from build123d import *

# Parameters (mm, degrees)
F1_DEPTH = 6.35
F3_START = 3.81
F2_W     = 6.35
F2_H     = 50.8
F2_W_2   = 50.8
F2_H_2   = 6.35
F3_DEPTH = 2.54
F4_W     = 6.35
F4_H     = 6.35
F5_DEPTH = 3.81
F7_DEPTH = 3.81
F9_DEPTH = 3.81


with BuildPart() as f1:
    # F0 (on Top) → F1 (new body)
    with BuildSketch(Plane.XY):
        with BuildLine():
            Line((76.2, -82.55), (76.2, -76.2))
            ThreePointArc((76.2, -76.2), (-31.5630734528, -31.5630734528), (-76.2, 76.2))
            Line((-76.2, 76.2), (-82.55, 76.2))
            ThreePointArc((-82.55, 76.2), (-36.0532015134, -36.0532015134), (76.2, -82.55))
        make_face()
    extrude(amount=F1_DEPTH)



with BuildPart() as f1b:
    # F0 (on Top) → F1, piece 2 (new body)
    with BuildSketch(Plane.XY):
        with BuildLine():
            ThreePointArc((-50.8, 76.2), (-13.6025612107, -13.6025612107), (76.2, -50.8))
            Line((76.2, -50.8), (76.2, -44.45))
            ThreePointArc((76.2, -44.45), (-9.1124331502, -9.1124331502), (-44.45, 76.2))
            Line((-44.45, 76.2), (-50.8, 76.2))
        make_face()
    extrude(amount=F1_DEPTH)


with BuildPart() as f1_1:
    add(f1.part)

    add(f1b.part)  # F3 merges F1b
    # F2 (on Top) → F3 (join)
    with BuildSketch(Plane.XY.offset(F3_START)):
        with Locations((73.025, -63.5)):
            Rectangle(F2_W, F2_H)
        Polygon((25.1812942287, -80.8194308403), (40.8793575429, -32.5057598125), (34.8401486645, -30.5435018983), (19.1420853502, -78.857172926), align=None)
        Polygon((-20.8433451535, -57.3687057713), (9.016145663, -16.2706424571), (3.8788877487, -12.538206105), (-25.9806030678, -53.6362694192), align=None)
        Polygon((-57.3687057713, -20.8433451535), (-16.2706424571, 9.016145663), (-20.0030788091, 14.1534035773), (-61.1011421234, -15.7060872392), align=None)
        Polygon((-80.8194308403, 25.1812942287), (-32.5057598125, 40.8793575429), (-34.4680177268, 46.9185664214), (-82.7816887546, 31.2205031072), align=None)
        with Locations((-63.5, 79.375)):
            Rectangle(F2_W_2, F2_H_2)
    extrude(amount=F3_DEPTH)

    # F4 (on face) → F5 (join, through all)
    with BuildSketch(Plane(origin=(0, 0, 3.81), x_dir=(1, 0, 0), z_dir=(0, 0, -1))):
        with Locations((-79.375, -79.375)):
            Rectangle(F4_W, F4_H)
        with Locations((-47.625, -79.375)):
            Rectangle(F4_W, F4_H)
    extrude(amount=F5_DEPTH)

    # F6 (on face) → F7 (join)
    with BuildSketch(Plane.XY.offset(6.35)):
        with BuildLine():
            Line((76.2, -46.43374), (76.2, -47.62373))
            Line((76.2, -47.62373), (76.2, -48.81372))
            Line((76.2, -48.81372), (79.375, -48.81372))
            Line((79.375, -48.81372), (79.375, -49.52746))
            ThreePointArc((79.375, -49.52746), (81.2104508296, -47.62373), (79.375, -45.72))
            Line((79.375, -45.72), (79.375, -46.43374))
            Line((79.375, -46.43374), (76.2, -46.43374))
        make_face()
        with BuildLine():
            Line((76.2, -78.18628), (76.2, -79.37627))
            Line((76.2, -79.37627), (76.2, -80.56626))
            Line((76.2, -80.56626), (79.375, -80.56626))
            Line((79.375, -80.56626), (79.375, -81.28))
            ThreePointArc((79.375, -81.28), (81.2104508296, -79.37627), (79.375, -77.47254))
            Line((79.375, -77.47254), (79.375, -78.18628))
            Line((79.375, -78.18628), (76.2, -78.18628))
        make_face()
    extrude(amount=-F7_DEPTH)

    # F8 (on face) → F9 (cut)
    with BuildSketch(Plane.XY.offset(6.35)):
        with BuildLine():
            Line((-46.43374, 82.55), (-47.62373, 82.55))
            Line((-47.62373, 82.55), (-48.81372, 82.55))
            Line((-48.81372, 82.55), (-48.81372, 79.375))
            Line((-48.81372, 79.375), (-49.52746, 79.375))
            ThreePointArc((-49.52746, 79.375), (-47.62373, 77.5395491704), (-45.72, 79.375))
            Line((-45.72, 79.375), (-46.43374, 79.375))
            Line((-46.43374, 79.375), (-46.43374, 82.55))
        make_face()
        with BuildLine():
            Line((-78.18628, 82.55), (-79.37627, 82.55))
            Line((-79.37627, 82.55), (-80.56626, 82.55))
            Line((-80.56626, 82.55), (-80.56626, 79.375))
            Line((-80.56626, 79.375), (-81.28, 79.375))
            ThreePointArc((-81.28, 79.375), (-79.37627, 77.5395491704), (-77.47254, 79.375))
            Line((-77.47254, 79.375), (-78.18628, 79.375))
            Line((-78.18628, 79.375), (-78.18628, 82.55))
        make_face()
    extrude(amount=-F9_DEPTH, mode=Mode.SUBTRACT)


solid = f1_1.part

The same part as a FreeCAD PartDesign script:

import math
import FreeCAD as App
import Part
import Sketcher
Q = App.Units.Quantity

doc = App.newDocument("Part")
body = doc.addObject("PartDesign::Body", "Body")

# Sketch on XY plane
sketch1 = body.newObject("Sketcher::SketchObject", "Sketch")
sketch1.AttachmentSupport = (doc.getObject("XY_Plane"), [""])
sketch1.MapMode = "FlatFace"
sketch1.addGeometry([
    Part.LineSegment(App.Vector(76, -83, 0), App.Vector(76, -76, 0)),
    Part.ArcOfCircle(Part.Circle(App.Vector(76, 76, 0), App.Vector(0, 0, 1), 152), math.radians(180), math.radians(270)),
    Part.LineSegment(App.Vector(-76, 76, 0), App.Vector(-83, 76, 0)),
    Part.ArcOfCircle(Part.Circle(App.Vector(76, 76, 0), App.Vector(0, 0, 1), 159), math.radians(180), math.radians(270)),
], False)
sketch1.addConstraint([
    Sketcher.Constraint("Coincident", 0, 2, 1, 2),
    Sketcher.Constraint("Coincident", 1, 1, 2, 1),
    Sketcher.Constraint("Coincident", 2, 2, 3, 1),
    Sketcher.Constraint("Coincident", 3, 2, 0, 1),
    Sketcher.Constraint("Vertical", 0),
    Sketcher.Constraint("Horizontal", 2),
    Sketcher.Constraint("Coincident", 3, 3, 1, 3),
    Sketcher.Constraint("Symmetric", 0, 2, 1, 1, -1, 1),
    Sketcher.Constraint("Horizontal", 3, 3, 1, 1),
    Sketcher.Constraint("Vertical", 3, 3, 0, 2),
    Sketcher.Constraint("Radius", 1, Q("6 in")),
    Sketcher.Constraint("Radius", 3, Q("6.25 in")),
])
pad1 = body.newObject("PartDesign::Pad", "Pad")
pad1.Profile = sketch1
pad1.Length = Q("0.25 in")
body2 = doc.addObject("PartDesign::Body", "Body001")

# Sketch on XY plane
sketch2 = body2.newObject("Sketcher::SketchObject", "Sketch001")
sketch2.AttachmentSupport = (doc.getObject("XY_Plane001"), [""])
sketch2.MapMode = "FlatFace"
sketch2.addGeometry([
    Part.ArcOfCircle(Part.Circle(App.Vector(76, 76, 0), App.Vector(0, 0, 1), 127), math.radians(180), math.radians(270)),
    Part.LineSegment(App.Vector(76, -51, 0), App.Vector(76, -44, 0)),
    Part.ArcOfCircle(Part.Circle(App.Vector(76, 76, 0), App.Vector(0, 0, 1), 121), math.radians(180), math.radians(270)),
    Part.LineSegment(App.Vector(-44, 76, 0), App.Vector(-51, 76, 0)),
], False)
sketch2.addConstraint([
    Sketcher.Constraint("Coincident", 0, 2, 1, 1),
    Sketcher.Constraint("Coincident", 1, 2, 2, 2),
    Sketcher.Constraint("Coincident", 2, 1, 3, 1),
    Sketcher.Constraint("Coincident", 3, 2, 0, 1),
    Sketcher.Constraint("Vertical", 1),
    Sketcher.Constraint("Horizontal", 3),
    Sketcher.Constraint("Coincident", 2, 3, 0, 3),
    Sketcher.Constraint("Horizontal", 0, 3, 2, 1),
    Sketcher.Constraint("Vertical", 2, 3, 0, 2),
    Sketcher.Constraint("Radius", 0, Q("5 in")),
    Sketcher.Constraint("Radius", 2, Q("4.75 in")),
    Sketcher.Constraint("DistanceX", -1, 1, 0, 3, Q("3 in")),
    Sketcher.Constraint("DistanceY", -1, 1, 0, 3, Q("3 in")),
])
pad2 = body2.newObject("PartDesign::Pad", "Pad001")
pad2.Profile = sketch2
pad2.Length = Q("0.25 in")
body.AllowCompound = True
doc.recompute()

boolean = body.newObject("PartDesign::Boolean", "Boolean")
boolean.Type = "Fuse"
boolean.addObjects([body2])

# Sketch on XY plane
sketch3 = body.newObject("Sketcher::SketchObject", "Sketch002")
sketch3.AttachmentSupport = (doc.getObject("XY_Plane"), [""])
sketch3.MapMode = "FlatFace"
sketch3.AttachmentOffset = App.Placement(App.Vector(0, 0, 0.15 * 25.4), App.Rotation())
sketch3.addGeometry([
    Part.LineSegment(App.Vector(70, -38, 0), App.Vector(70, -89, 0)),  # 0
    Part.LineSegment(App.Vector(70, -89, 0), App.Vector(76, -89, 0)),  # 1
    Part.LineSegment(App.Vector(76, -89, 0), App.Vector(76, -38, 0)),  # 2
    Part.LineSegment(App.Vector(76, -38, 0), App.Vector(70, -38, 0)),  # 3
    Part.LineSegment(App.Vector(25, -81, 0), App.Vector(41, -33, 0)),  # 4
    Part.LineSegment(App.Vector(41, -33, 0), App.Vector(35, -31, 0)),  # 5
    Part.LineSegment(App.Vector(35, -31, 0), App.Vector(19, -79, 0)),  # 6
    Part.LineSegment(App.Vector(19, -79, 0), App.Vector(25, -81, 0)),  # 7
    Part.LineSegment(App.Vector(-21, -57, 0), App.Vector(9, -16, 0)),  # 8
    Part.LineSegment(App.Vector(9, -16, 0), App.Vector(4, -13, 0)),  # 9
    Part.LineSegment(App.Vector(4, -13, 0), App.Vector(-26, -54, 0)),  # 10
    Part.LineSegment(App.Vector(-26, -54, 0), App.Vector(-21, -57, 0)),  # 11
    Part.LineSegment(App.Vector(-57, -21, 0), App.Vector(-16, 9, 0)),  # 12
    Part.LineSegment(App.Vector(-16, 9, 0), App.Vector(-20, 14, 0)),  # 13
    Part.LineSegment(App.Vector(-20, 14, 0), App.Vector(-61, -16, 0)),  # 14
    Part.LineSegment(App.Vector(-61, -16, 0), App.Vector(-57, -21, 0)),  # 15
    Part.LineSegment(App.Vector(-81, 25, 0), App.Vector(-33, 41, 0)),  # 16
    Part.LineSegment(App.Vector(-33, 41, 0), App.Vector(-34, 47, 0)),  # 17
    Part.LineSegment(App.Vector(-34, 47, 0), App.Vector(-83, 31, 0)),  # 18
    Part.LineSegment(App.Vector(-83, 31, 0), App.Vector(-81, 25, 0)),  # 19
    Part.LineSegment(App.Vector(-89, 83, 0), App.Vector(-89, 76, 0)),  # 20
    Part.LineSegment(App.Vector(-89, 76, 0), App.Vector(-38, 76, 0)),  # 21
    Part.LineSegment(App.Vector(-38, 76, 0), App.Vector(-38, 83, 0)),  # 22
    Part.LineSegment(App.Vector(-38, 83, 0), App.Vector(-89, 83, 0)),  # 23
], False)
sketch3.addConstraint([
    Sketcher.Constraint("Coincident", 0, 2, 1, 1),
    Sketcher.Constraint("Coincident", 1, 2, 2, 1),
    Sketcher.Constraint("Coincident", 2, 2, 3, 1),
    Sketcher.Constraint("Coincident", 3, 2, 0, 1),
    Sketcher.Constraint("Coincident", 4, 2, 5, 1),
    Sketcher.Constraint("Coincident", 5, 2, 6, 1),
    Sketcher.Constraint("Coincident", 6, 2, 7, 1),
    Sketcher.Constraint("Coincident", 7, 2, 4, 1),
    Sketcher.Constraint("Coincident", 8, 2, 9, 1),
    Sketcher.Constraint("Coincident", 9, 2, 10, 1),
    Sketcher.Constraint("Coincident", 10, 2, 11, 1),
    Sketcher.Constraint("Coincident", 11, 2, 8, 1),
    Sketcher.Constraint("Coincident", 12, 2, 13, 1),
    Sketcher.Constraint("Coincident", 13, 2, 14, 1),
    Sketcher.Constraint("Coincident", 14, 2, 15, 1),
    Sketcher.Constraint("Coincident", 15, 2, 12, 1),
    Sketcher.Constraint("Coincident", 16, 2, 17, 1),
    Sketcher.Constraint("Coincident", 17, 2, 18, 1),
    Sketcher.Constraint("Coincident", 18, 2, 19, 1),
    Sketcher.Constraint("Coincident", 19, 2, 16, 1),
    Sketcher.Constraint("Coincident", 20, 2, 21, 1),
    Sketcher.Constraint("Coincident", 21, 2, 22, 1),
    Sketcher.Constraint("Coincident", 22, 2, 23, 1),
    Sketcher.Constraint("Coincident", 23, 2, 20, 1),
    Sketcher.Constraint("Vertical", 0),
    Sketcher.Constraint("Horizontal", 1),
    Sketcher.Constraint("Vertical", 2),
    Sketcher.Constraint("Horizontal", 3),
    Sketcher.Constraint("Vertical", 20),
    Sketcher.Constraint("Horizontal", 21),
    Sketcher.Constraint("Vertical", 22),
    Sketcher.Constraint("Horizontal", 23),
    Sketcher.Constraint("Perpendicular", 4, 5),
    Sketcher.Constraint("Perpendicular", 5, 6),
    Sketcher.Constraint("Perpendicular", 6, 7),
    Sketcher.Constraint("Perpendicular", 8, 9),
    Sketcher.Constraint("Perpendicular", 9, 10),
    Sketcher.Constraint("Perpendicular", 10, 11),
    Sketcher.Constraint("Perpendicular", 12, 13),
    Sketcher.Constraint("Perpendicular", 13, 14),
    Sketcher.Constraint("Perpendicular", 14, 15),
    Sketcher.Constraint("Perpendicular", 16, 17),
    Sketcher.Constraint("Perpendicular", 17, 18),
    Sketcher.Constraint("Perpendicular", 18, 19),
    Sketcher.Constraint("Equal", 23, 0),
    Sketcher.Constraint("Equal", 3, 20),
    Sketcher.Constraint("Equal", 6, 8),
    Sketcher.Constraint("Equal", 7, 9),
    Sketcher.Constraint("Equal", 10, 12),
    Sketcher.Constraint("Equal", 11, 13),
    Sketcher.Constraint("Equal", 14, 16),
    Sketcher.Constraint("Equal", 15, 17),
    Sketcher.Constraint("DistanceX", 21, 1, 21, 2, Q("2 in")),
    Sketcher.Constraint("Distance", 4, Q("2 in")),
    Sketcher.Constraint("DistanceX", -1, 1, 1, 2, Q("3 in")),
    Sketcher.Constraint("DistanceY", -1, 1, 20, 2, Q("3 in")),
    Sketcher.Constraint("Angle", 4, Q("72 deg")),
    Sketcher.Constraint("Angle", 8, Q("54 deg")),
    Sketcher.Constraint("Angle", 12, Q("36 deg")),
    Sketcher.Constraint("Angle", 16, Q("18 deg")),
    Sketcher.Constraint("DistanceX", 1, 1, 1, 2, Q("0.25 in")),
    Sketcher.Constraint("DistanceY", 0, 2, -1, 1, Q("3.5 in")),
    Sketcher.Constraint("DistanceX", 20, 2, -1, 1, Q("3.5 in")),
    Sketcher.Constraint("Distance", 5, Q("0.25 in")),
    Sketcher.Constraint("DistanceY", 5, 2, -1, 1, Q("1.2025001 in")),
    Sketcher.Constraint("DistanceY", 13, 2, 18, 2, 17.0671),
    Sketcher.Constraint("DistanceX", -1, 1, 5, 2, 34.840149),
    Sketcher.Constraint("DistanceY", 10, 2, -1, 1, 53.636269),
    Sketcher.Constraint("DistanceX", 13, 2, -1, 1, 20.003079),
    Sketcher.Constraint("DistanceX", 16, 2, -1, 1, 32.50576),
    Sketcher.Constraint("DistanceX", 8, 2, 4, 2, 31.863212),
    Sketcher.Constraint("DistanceY", 9, 2, 12, 2, 21.554352),
])
pad3 = body.newObject("PartDesign::Pad", "Pad002")
pad3.Profile = sketch3
pad3.Length = Q("0.1 in")

# Sketch on XY plane
sketch4 = body.newObject("Sketcher::SketchObject", "Sketch003")
sketch4.AttachmentSupport = (doc.getObject("XY_Plane"), [""])
sketch4.MapMode = "FlatFace"
sketch4.AttachmentOffset = App.Placement(App.Vector(0, 0, 0.15 * 25.4), App.Rotation())
sketch4.addGeometry([
    Part.LineSegment(App.Vector(-83, 76, 0), App.Vector(-83, 83, 0)),  # 0
    Part.LineSegment(App.Vector(-83, 83, 0), App.Vector(-76, 83, 0)),  # 1
    Part.LineSegment(App.Vector(-76, 83, 0), App.Vector(-76, 76, 0)),  # 2
    Part.LineSegment(App.Vector(-76, 76, 0), App.Vector(-83, 76, 0)),  # 3
    Part.LineSegment(App.Vector(-51, 76, 0), App.Vector(-51, 83, 0)),  # 4
    Part.LineSegment(App.Vector(-51, 83, 0), App.Vector(-44, 83, 0)),  # 5
    Part.LineSegment(App.Vector(-44, 83, 0), App.Vector(-44, 76, 0)),  # 6
    Part.LineSegment(App.Vector(-44, 76, 0), App.Vector(-51, 76, 0)),  # 7
], False)
sketch4.addConstraint([
    Sketcher.Constraint("Coincident", 0, 2, 1, 1),
    Sketcher.Constraint("Coincident", 1, 2, 2, 1),
    Sketcher.Constraint("Coincident", 2, 2, 3, 1),
    Sketcher.Constraint("Coincident", 3, 2, 0, 1),
    Sketcher.Constraint("Coincident", 4, 2, 5, 1),
    Sketcher.Constraint("Coincident", 5, 2, 6, 1),
    Sketcher.Constraint("Coincident", 6, 2, 7, 1),
    Sketcher.Constraint("Coincident", 7, 2, 4, 1),
    Sketcher.Constraint("Vertical", 0),
    Sketcher.Constraint("Horizontal", 1),
    Sketcher.Constraint("Vertical", 2),
    Sketcher.Constraint("Horizontal", 3),
    Sketcher.Constraint("Vertical", 4),
    Sketcher.Constraint("Horizontal", 5),
    Sketcher.Constraint("Vertical", 6),
    Sketcher.Constraint("Horizontal", 7),
    Sketcher.Constraint("Horizontal", 1, 2, 4, 2),
    Sketcher.Constraint("Horizontal", 3, 2, 6, 2),
    Sketcher.Constraint("Equal", 3, 5),
    Sketcher.Constraint("Equal", 7, 0),
    Sketcher.Constraint("DistanceX", 1, 2, -1, 1, Q("3 in")),
    Sketcher.Constraint("DistanceY", -1, 1, 2, 2, Q("3 in")),
    Sketcher.Constraint("DistanceX", 4, 2, -1, 1, Q("2 in")),
    Sketcher.Constraint("DistanceX", 1, 1, 1, 2, Q("0.25 in")),
])
pad4 = body.newObject("PartDesign::Pad", "Pad003")
pad4.Profile = sketch4
pad4.Length = Q("0.15 in")
pad4.Reversed = True

# Sketch on XY plane
sketch5 = body.newObject("Sketcher::SketchObject", "Sketch004")
sketch5.AttachmentSupport = (doc.getObject("XY_Plane"), [""])
sketch5.MapMode = "FlatFace"
sketch5.AttachmentOffset = App.Placement(App.Vector(0, 0, 0.25 * 25.4), App.Rotation())
sketch5.addGeometry([
    Part.LineSegment(App.Vector(76.2, -46.4, 0), App.Vector(76.2, -48.8, 0)),  # 0
    Part.LineSegment(App.Vector(76.2, -48.8, 0), App.Vector(79.4, -48.8, 0)),  # 1
    Part.LineSegment(App.Vector(79.4, -48.8, 0), App.Vector(79.4, -49.5, 0)),  # 2
    Part.ArcOfCircle(Part.Circle(App.Vector(79.3, -47.6, 0), App.Vector(0, 0, 1), 1.9), math.radians(-88), math.radians(88)),  # 3
    Part.LineSegment(App.Vector(79.4, -45.7, 0), App.Vector(79.4, -46.4, 0)),  # 4
    Part.LineSegment(App.Vector(79.4, -46.4, 0), App.Vector(76.2, -46.4, 0)),  # 5
    Part.LineSegment(App.Vector(76.2, -78.2, 0), App.Vector(76.2, -80.6, 0)),  # 6
    Part.LineSegment(App.Vector(76.2, -80.6, 0), App.Vector(79.4, -80.6, 0)),  # 7
    Part.LineSegment(App.Vector(79.4, -80.6, 0), App.Vector(79.4, -81.3, 0)),  # 8
    Part.ArcOfCircle(Part.Circle(App.Vector(79.3, -79.4, 0), App.Vector(0, 0, 1), 1.9), math.radians(-88), math.radians(88)),  # 9
    Part.LineSegment(App.Vector(79.4, -77.5, 0), App.Vector(79.4, -78.2, 0)),  # 10
    Part.LineSegment(App.Vector(79.4, -78.2, 0), App.Vector(76.2, -78.2, 0)),  # 11
], False)
sketch5.addConstraint([
    Sketcher.Constraint("Coincident", 0, 2, 1, 1),
    Sketcher.Constraint("Coincident", 1, 2, 2, 1),
    Sketcher.Constraint("Coincident", 2, 2, 3, 1),
    Sketcher.Constraint("Coincident", 3, 2, 4, 1),
    Sketcher.Constraint("Coincident", 4, 2, 5, 1),
    Sketcher.Constraint("Coincident", 5, 2, 0, 1),
    Sketcher.Constraint("Coincident", 6, 2, 7, 1),
    Sketcher.Constraint("Coincident", 7, 2, 8, 1),
    Sketcher.Constraint("Coincident", 8, 2, 9, 1),
    Sketcher.Constraint("Coincident", 9, 2, 10, 1),
    Sketcher.Constraint("Coincident", 10, 2, 11, 1),
    Sketcher.Constraint("Coincident", 11, 2, 6, 1),
    Sketcher.Constraint("Vertical", 0),
    Sketcher.Constraint("Horizontal", 1),
    Sketcher.Constraint("Vertical", 2),
    Sketcher.Constraint("Vertical", 4),
    Sketcher.Constraint("Horizontal", 5),
    Sketcher.Constraint("Vertical", 6),
    Sketcher.Constraint("Horizontal", 7),
    Sketcher.Constraint("Vertical", 8),
    Sketcher.Constraint("Vertical", 10),
    Sketcher.Constraint("Horizontal", 11),
    Sketcher.Constraint("Equal", 3, 9),
    Sketcher.Constraint("Vertical", 3, 3, 9, 3),
    Sketcher.Constraint("Vertical", 2, 2, 3, 2),
    Sketcher.Constraint("Vertical", 5, 2, 6, 2),
    Sketcher.Constraint("Vertical", 4, 2, 7, 2),
    Sketcher.Constraint("Vertical", 8, 2, 9, 2),
    Sketcher.Constraint("Equal", 2, 4),
    Sketcher.Constraint("Equal", 0, 6),
    Sketcher.Constraint("Equal", 4, 8),
    Sketcher.Constraint("DistanceX", -1, 1, 0, 2, Q("3 in")),
    Sketcher.Constraint("Radius", 3, Q("0.075 in")),
    Sketcher.Constraint("DistanceY", 3, 2, -1, 1, Q("1.8 in")),
    Sketcher.Constraint("DistanceY", 8, 2, -1, 1, Q("3.2 in")),
    Sketcher.Constraint("DistanceX", 1, 1, 1, 2, Q("0.125 in")),
    Sketcher.Constraint("DistanceY", 0, 2, 0, 1, Q("0.0937 in")),
    Sketcher.Constraint("DistanceY", 2, 2, 2, 1, Q("0.0281 in")),
])
pad5 = body.newObject("PartDesign::Pad", "Pad004")
pad5.Profile = sketch5
pad5.Length = Q("0.15 in")
pad5.Reversed = True

# Sketch on XY plane
sketch6 = body.newObject("Sketcher::SketchObject", "Sketch005")
sketch6.AttachmentSupport = (doc.getObject("XY_Plane"), [""])
sketch6.MapMode = "FlatFace"
sketch6.AttachmentOffset = App.Placement(App.Vector(0, 0, 0.25 * 25.4), App.Rotation())
sketch6.addGeometry([
    Part.LineSegment(App.Vector(-46.4, 82.5, 0), App.Vector(-48.8, 82.5, 0)),  # 0
    Part.LineSegment(App.Vector(-48.8, 82.5, 0), App.Vector(-48.8, 79.4, 0)),  # 1
    Part.LineSegment(App.Vector(-48.8, 79.4, 0), App.Vector(-49.5, 79.4, 0)),  # 2
    Part.ArcOfCircle(Part.Circle(App.Vector(-47.6, 79.4, 0), App.Vector(0, 0, 1), 1.9), math.radians(-178), math.radians(-2)),  # 3
    Part.LineSegment(App.Vector(-45.7, 79.4, 0), App.Vector(-46.4, 79.4, 0)),  # 4
    Part.LineSegment(App.Vector(-46.4, 79.4, 0), App.Vector(-46.4, 82.5, 0)),  # 5
    Part.LineSegment(App.Vector(-78.2, 82.5, 0), App.Vector(-80.6, 82.5, 0)),  # 6
    Part.LineSegment(App.Vector(-80.6, 82.5, 0), App.Vector(-80.6, 79.4, 0)),  # 7
    Part.LineSegment(App.Vector(-80.6, 79.4, 0), App.Vector(-81.3, 79.4, 0)),  # 8
    Part.ArcOfCircle(Part.Circle(App.Vector(-79.4, 79.4, 0), App.Vector(0, 0, 1), 1.9), math.radians(-178), math.radians(-2)),  # 9
    Part.LineSegment(App.Vector(-77.5, 79.4, 0), App.Vector(-78.2, 79.4, 0)),  # 10
    Part.LineSegment(App.Vector(-78.2, 79.4, 0), App.Vector(-78.2, 82.5, 0)),  # 11
], False)
sketch6.addConstraint([
    Sketcher.Constraint("Coincident", 0, 2, 1, 1),
    Sketcher.Constraint("Coincident", 1, 2, 2, 1),
    Sketcher.Constraint("Coincident", 2, 2, 3, 1),
    Sketcher.Constraint("Coincident", 3, 2, 4, 1),
    Sketcher.Constraint("Coincident", 4, 2, 5, 1),
    Sketcher.Constraint("Coincident", 5, 2, 0, 1),
    Sketcher.Constraint("Coincident", 6, 2, 7, 1),
    Sketcher.Constraint("Coincident", 7, 2, 8, 1),
    Sketcher.Constraint("Coincident", 8, 2, 9, 1),
    Sketcher.Constraint("Coincident", 9, 2, 10, 1),
    Sketcher.Constraint("Coincident", 10, 2, 11, 1),
    Sketcher.Constraint("Coincident", 11, 2, 6, 1),
    Sketcher.Constraint("Horizontal", 0),
    Sketcher.Constraint("Vertical", 1),
    Sketcher.Constraint("Horizontal", 2),
    Sketcher.Constraint("Horizontal", 4),
    Sketcher.Constraint("Vertical", 5),
    Sketcher.Constraint("Horizontal", 6),
    Sketcher.Constraint("Vertical", 7),
    Sketcher.Constraint("Horizontal", 8),
    Sketcher.Constraint("Horizontal", 10),
    Sketcher.Constraint("Vertical", 11),
    Sketcher.Constraint("Equal", 3, 9),
    Sketcher.Constraint("Horizontal", 3, 3, 9, 3),
    Sketcher.Constraint("Horizontal", 2, 2, 3, 2),
    Sketcher.Constraint("Horizontal", 5, 2, 6, 2),
    Sketcher.Constraint("Horizontal", 4, 2, 7, 2),
    Sketcher.Constraint("Horizontal", 8, 2, 9, 2),
    Sketcher.Constraint("Equal", 2, 4),
    Sketcher.Constraint("Equal", 0, 6),
    Sketcher.Constraint("Equal", 4, 8),
    Sketcher.Constraint("Radius", 3, Q("0.075 in")),
    Sketcher.Constraint("DistanceX", 3, 2, -1, 1, Q("1.8 in")),
    Sketcher.Constraint("DistanceX", 8, 2, -1, 1, Q("3.2 in")),
    Sketcher.Constraint("DistanceY", 1, 2, 1, 1, Q("0.125 in")),
    Sketcher.Constraint("DistanceY", -1, 1, 0, 2, Q("3.25 in")),
    Sketcher.Constraint("DistanceX", 0, 2, 0, 1, Q("0.0937 in")),
    Sketcher.Constraint("DistanceX", 2, 2, 2, 1, Q("0.0281 in")),
])
pocket1 = body.newObject("PartDesign::Pocket", "Pocket")
pocket1.Profile = sketch6
pocket1.Length = Q("0.15 in")

doc.recompute()
